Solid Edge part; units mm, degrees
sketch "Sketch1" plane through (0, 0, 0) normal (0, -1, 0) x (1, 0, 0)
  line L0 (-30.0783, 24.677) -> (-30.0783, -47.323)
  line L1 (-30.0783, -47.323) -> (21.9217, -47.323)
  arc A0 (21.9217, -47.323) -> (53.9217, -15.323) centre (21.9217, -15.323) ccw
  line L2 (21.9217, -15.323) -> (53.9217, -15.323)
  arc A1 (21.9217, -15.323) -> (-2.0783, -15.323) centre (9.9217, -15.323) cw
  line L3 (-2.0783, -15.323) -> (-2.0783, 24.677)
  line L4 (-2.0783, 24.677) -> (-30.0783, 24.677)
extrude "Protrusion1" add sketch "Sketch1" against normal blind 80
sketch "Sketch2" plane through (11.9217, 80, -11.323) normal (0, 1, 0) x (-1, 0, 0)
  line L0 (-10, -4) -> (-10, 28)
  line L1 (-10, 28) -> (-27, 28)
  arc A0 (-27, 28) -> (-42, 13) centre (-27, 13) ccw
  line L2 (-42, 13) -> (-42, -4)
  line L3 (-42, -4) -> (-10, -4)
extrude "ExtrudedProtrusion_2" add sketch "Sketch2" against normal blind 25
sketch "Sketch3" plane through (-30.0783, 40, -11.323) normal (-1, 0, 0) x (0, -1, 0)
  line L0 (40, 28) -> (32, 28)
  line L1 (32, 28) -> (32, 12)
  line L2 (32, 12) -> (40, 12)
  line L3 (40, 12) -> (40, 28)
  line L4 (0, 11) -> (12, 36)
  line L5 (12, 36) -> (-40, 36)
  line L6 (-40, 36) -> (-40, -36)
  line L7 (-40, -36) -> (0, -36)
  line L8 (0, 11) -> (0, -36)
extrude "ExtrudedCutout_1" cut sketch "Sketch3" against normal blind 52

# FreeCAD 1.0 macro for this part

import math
import FreeCAD as App
import Part
import Sketcher


def add_polygon(sketch, points):
    """Adds a closed chain of lines whose ends are joined by coincident constraints."""
    first, n = sketch.GeometryCount, len(points)
    for a, b in zip(points, points[1:] + points[:1]):
        sketch.addGeometry(Part.LineSegment(App.Vector(*a, 0), App.Vector(*b, 0)), False)
    for i in range(n):
        sketch.addConstraint(Sketcher.Constraint("Coincident", first + i, 2, first + (i + 1) % n, 1))

doc = App.newDocument("Part")
body = doc.addObject("PartDesign::Body", "Body")

# Sketch on XZ plane
sketch1 = doc.addObject("Sketcher::SketchObject", "Sketch")
body.addObject(sketch1)
sketch1.AttachmentSupport = (doc.XZ_Plane, [""])
sketch1.MapMode = "FlatFace"
sketch1.addGeometry(Part.LineSegment(App.Vector(-2, 25, 0), App.Vector(-30, 25, 0)), False)
sketch1.addGeometry(Part.LineSegment(App.Vector(-30, 25, 0), App.Vector(-30, -47, 0)), False)
sketch1.addGeometry(Part.LineSegment(App.Vector(-30, -47, 0), App.Vector(22, -47, 0)), False)
sketch1.addGeometry(Part.ArcOfCircle(Part.Circle(App.Vector(22, -15, 0), App.Vector(0, 0, 1), 32), math.radians(-90), math.radians(0)), False)
sketch1.addGeometry(Part.LineSegment(App.Vector(54, -15, 0), App.Vector(22, -15, 0)), False)
sketch1.addGeometry(Part.ArcOfCircle(Part.Circle(App.Vector(10, -15, 0), App.Vector(0, 0, 1), 12), math.radians(180), math.radians(360)), False)
sketch1.addGeometry(Part.LineSegment(App.Vector(-2, -15, 0), App.Vector(-2, 25, 0)), False)
sketch1.addConstraint(Sketcher.Constraint("Coincident", 0, 2, 1, 1))
sketch1.addConstraint(Sketcher.Constraint("Coincident", 1, 2, 2, 1))
sketch1.addConstraint(Sketcher.Constraint("Tangent", 2, 2, 3, 1))
sketch1.addConstraint(Sketcher.Constraint("Coincident", 3, 2, 4, 1))
sketch1.addConstraint(Sketcher.Constraint("Coincident", 4, 2, 5, 2))
sketch1.addConstraint(Sketcher.Constraint("Tangent", 5, 1, 6, 1))
sketch1.addConstraint(Sketcher.Constraint("Coincident", 6, 2, 0, 1))
sketch1.addConstraint(Sketcher.Constraint("Horizontal", 0))
sketch1.addConstraint(Sketcher.Constraint("Vertical", 1))
sketch1.addConstraint(Sketcher.Constraint("Horizontal", 2))
sketch1.addConstraint(Sketcher.Constraint("Horizontal", 4))
sketch1.addConstraint(Sketcher.Constraint("Vertical", 6))
sketch1.addConstraint(Sketcher.Constraint("Coincident", 4, 2, 3, 3))
sketch1.addConstraint(Sketcher.Constraint("Horizontal", 3, 3, 5, 3))
sketch1.addConstraint(Sketcher.Constraint("Radius", 3, 32.0))
sketch1.addConstraint(Sketcher.Constraint("Radius", 5, 12.0))
sketch1.addConstraint(Sketcher.Constraint("DistanceX", 0, 2, 0, 1, 28.0))
sketch1.addConstraint(Sketcher.Constraint("DistanceY", 1, 2, 1, 1, 72.0))
sketch1.addConstraint(Sketcher.Constraint("DistanceY", 3, 3, -1, 1, 15.323))
sketch1.addConstraint(Sketcher.Constraint("DistanceX", -1, 1, 3, 3, 21.9217))
pad1 = doc.addObject("PartDesign::Pad", "Pad")
body.addObject(pad1)
pad1.Profile = sketch1
pad1.Length = 80
pad1.Reversed = True

# Sketch on XZ plane
sketch2 = doc.addObject("Sketcher::SketchObject", "Sketch001")
body.addObject(sketch2)
sketch2.AttachmentSupport = (doc.XZ_Plane, [""])
sketch2.MapMode = "FlatFace"
sketch2.AttachmentOffset = App.Placement(App.Vector(0, 0, -80), App.Rotation())
sketch2.addGeometry(Part.LineSegment(App.Vector(54, -15, 0), App.Vector(22, -15, 0)), False)
sketch2.addGeometry(Part.LineSegment(App.Vector(22, -15, 0), App.Vector(22, 17, 0)), False)
sketch2.addGeometry(Part.LineSegment(App.Vector(22, 17, 0), App.Vector(39, 17, 0)), False)
sketch2.addGeometry(Part.ArcOfCircle(Part.Circle(App.Vector(39, 2, 0), App.Vector(0, 0, 1), 15), math.radians(0), math.radians(90)), False)
sketch2.addGeometry(Part.LineSegment(App.Vector(54, 2, 0), App.Vector(54, -15, 0)), False)
sketch2.addConstraint(Sketcher.Constraint("Coincident", 0, 2, 1, 1))
sketch2.addConstraint(Sketcher.Constraint("Coincident", 1, 2, 2, 1))
sketch2.addConstraint(Sketcher.Constraint("Tangent", 2, 2, 3, 2))
sketch2.addConstraint(Sketcher.Constraint("Tangent", 3, 1, 4, 1))
sketch2.addConstraint(Sketcher.Constraint("Coincident", 4, 2, 0, 1))
sketch2.addConstraint(Sketcher.Constraint("Horizontal", 0))
sketch2.addConstraint(Sketcher.Constraint("Vertical", 1))
sketch2.addConstraint(Sketcher.Constraint("Horizontal", 2))
sketch2.addConstraint(Sketcher.Constraint("Vertical", 4))
sketch2.addConstraint(Sketcher.Constraint("Equal", 0, 1))
sketch2.addConstraint(Sketcher.Constraint("Radius", 3, 15.0))
sketch2.addConstraint(Sketcher.Constraint("DistanceX", 0, 2, 0, 1, 32.0))
sketch2.addConstraint(Sketcher.Constraint("DistanceY", -1, 1, 3, 3, 1.677))
sketch2.addConstraint(Sketcher.Constraint("DistanceX", -1, 1, 3, 3, 38.9217))
pad2 = doc.addObject("PartDesign::Pad", "Pad001")
body.addObject(pad2)
pad2.Profile = sketch2
pad2.Length = 25

# Sketch on YZ plane
sketch3 = doc.addObject("Sketcher::SketchObject", "Sketch002")
body.addObject(sketch3)
sketch3.AttachmentSupport = (doc.YZ_Plane, [""])
sketch3.MapMode = "FlatFace"
sketch3.AttachmentOffset = App.Placement(App.Vector(0, 0, -30.0783), App.Rotation())
add_polygon(sketch3, [(0, 1), (0, 17), (8, 17), (8, 1)])  # lines 0-3
add_polygon(sketch3, [(40, -47), (40, 0), (28, 25), (80, 25), (80, -47)])  # lines 4-8
sketch3.addConstraint(Sketcher.Constraint("Vertical", 0))
sketch3.addConstraint(Sketcher.Constraint("Horizontal", 1))
sketch3.addConstraint(Sketcher.Constraint("Vertical", 2))
sketch3.addConstraint(Sketcher.Constraint("Horizontal", 3))
sketch3.addConstraint(Sketcher.Constraint("Vertical", 4))
sketch3.addConstraint(Sketcher.Constraint("Horizontal", 6))
sketch3.addConstraint(Sketcher.Constraint("Vertical", 7))
sketch3.addConstraint(Sketcher.Constraint("Horizontal", 8))
sketch3.addConstraint(Sketcher.Constraint("PointOnObject", 0, 2, -2))
sketch3.addConstraint(Sketcher.Constraint("DistanceX", 1, 1, 1, 2, 8.0))
sketch3.addConstraint(Sketcher.Constraint("DistanceX", 6, 1, 6, 2, 52.0))
sketch3.addConstraint(Sketcher.Constraint("DistanceX", 8, 2, 8, 1, 40.0))
sketch3.addConstraint(Sketcher.Constraint("DistanceY", 0, 1, 0, 2, 16.0))
sketch3.addConstraint(Sketcher.Constraint("DistanceY", 4, 1, 4, 2, 47.0))
sketch3.addConstraint(Sketcher.Constraint("DistanceY", 7, 2, 7, 1, 72.0))
sketch3.addConstraint(Sketcher.Constraint("DistanceX", -1, 1, 4, 2, 40.0))
sketch3.addConstraint(Sketcher.Constraint("DistanceY", 4, 2, 2, 2, 1.0))
sketch3.addConstraint(Sketcher.Constraint("DistanceY", -1, 1, 0, 2, 16.677))
pocket1 = doc.addObject("PartDesign::Pocket", "Pocket")
body.addObject(pocket1)
pocket1.Profile = sketch3
pocket1.Length = 52
pocket1.Reversed = True

doc.recompute()
